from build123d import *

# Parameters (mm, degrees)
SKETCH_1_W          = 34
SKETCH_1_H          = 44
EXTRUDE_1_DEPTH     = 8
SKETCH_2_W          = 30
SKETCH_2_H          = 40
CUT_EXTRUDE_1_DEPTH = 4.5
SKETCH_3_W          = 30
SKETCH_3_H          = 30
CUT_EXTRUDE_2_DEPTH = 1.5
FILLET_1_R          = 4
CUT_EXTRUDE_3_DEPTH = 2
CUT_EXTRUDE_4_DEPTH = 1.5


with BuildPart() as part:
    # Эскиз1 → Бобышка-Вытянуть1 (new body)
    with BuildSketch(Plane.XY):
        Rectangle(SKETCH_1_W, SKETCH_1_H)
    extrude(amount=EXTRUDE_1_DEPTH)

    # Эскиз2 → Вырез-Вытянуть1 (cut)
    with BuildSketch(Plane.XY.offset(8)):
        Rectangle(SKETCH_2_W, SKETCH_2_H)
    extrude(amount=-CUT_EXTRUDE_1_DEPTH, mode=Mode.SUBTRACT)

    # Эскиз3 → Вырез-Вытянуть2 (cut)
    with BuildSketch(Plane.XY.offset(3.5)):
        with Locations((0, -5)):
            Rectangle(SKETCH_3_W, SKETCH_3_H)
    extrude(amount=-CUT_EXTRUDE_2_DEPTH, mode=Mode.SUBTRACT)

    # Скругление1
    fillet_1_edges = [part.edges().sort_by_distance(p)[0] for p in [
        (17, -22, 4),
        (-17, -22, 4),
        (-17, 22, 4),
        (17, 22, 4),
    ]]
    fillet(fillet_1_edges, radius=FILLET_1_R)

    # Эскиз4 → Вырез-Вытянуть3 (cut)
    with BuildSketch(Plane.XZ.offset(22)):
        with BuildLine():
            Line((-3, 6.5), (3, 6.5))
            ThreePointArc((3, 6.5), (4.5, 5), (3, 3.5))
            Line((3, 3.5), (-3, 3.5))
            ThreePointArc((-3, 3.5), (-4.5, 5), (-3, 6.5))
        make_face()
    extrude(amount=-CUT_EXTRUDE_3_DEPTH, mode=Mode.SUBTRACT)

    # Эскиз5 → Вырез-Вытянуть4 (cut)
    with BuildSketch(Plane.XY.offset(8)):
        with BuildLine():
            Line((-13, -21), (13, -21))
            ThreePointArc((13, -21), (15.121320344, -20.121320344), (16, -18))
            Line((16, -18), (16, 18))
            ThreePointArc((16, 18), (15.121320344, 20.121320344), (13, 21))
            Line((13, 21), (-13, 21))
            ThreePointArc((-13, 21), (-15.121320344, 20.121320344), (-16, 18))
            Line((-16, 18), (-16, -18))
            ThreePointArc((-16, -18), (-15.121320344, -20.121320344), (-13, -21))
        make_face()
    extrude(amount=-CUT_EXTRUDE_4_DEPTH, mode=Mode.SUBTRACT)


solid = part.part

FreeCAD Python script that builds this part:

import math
import FreeCAD as App
import Part
import Sketcher
Q = App.Units.Quantity


def edges_at(feature, points):
    """Names of the edges that pass closest to the given points."""
    edges = feature.Shape.Edges
    near = lambda p: min(range(len(edges)), key=lambda i: edges[i].distToShape(Part.Vertex(*p))[0])
    return sorted({f"Edge{near(p) + 1}" for p in points})


def add_polygon(sketch, points):
    """Adds a closed chain of lines whose ends are joined by coincident constraints."""
    first, n = sketch.GeometryCount, len(points)
    for a, b in zip(points, points[1:] + points[:1]):
        sketch.addGeometry(Part.LineSegment(App.Vector(*a, 0), App.Vector(*b, 0)), False)
    for i in range(n):
        sketch.addConstraint(Sketcher.Constraint("Coincident", first + i, 2, first + (i + 1) % n, 1))

doc = App.newDocument("Part")
params = doc.addObject("Spreadsheet::Sheet", "Params")
for row, (alias, value) in enumerate([
    ("sketch1_width", "34 mm"),
    ("sketch1_height", "44 mm"),
    ("pad1_length", "8 mm"),
    ("sketch2_width", "30 mm"),
    ("sketch2_height", "40 mm"),
    ("pocket1_length", "4.5 mm"),
    ("sketch3_width", "30 mm"),
    ("pocket2_length", "1.5 mm"),
    ("fillet_radius", "4 mm"),
    ("sketch4_radius", "1.5 mm"),
    ("sketch4_width", "6 mm"),
    ("pocket3_length", "2 mm"),
    ("sketch5_radius", "3 mm"),
    ("sketch5_width", "26 mm"),
    ("sketch5_height", "36 mm"),
    ("pocket4_length", "1.5 mm"),
], start=1):
    params.set(f"A{row}", alias)
    params.set(f"B{row}", "=" + value)
    params.setAlias(f"B{row}", alias)

body = doc.addObject("PartDesign::Body", "Body")

sketch1 = body.newObject("Sketcher::SketchObject", "Sketch")
sketch1.AttachmentSupport = (doc.getObject("XY_Plane"), [""])
sketch1.MapMode = "FlatFace"
add_polygon(sketch1, [(-17, 22), (-17, -22), (17, -22), (17, 22)])
sketch1.addConstraint([
    Sketcher.Constraint("Vertical", 0),
    Sketcher.Constraint("Horizontal", 1),
    Sketcher.Constraint("Vertical", 2),
    Sketcher.Constraint("Horizontal", 3),
    Sketcher.Constraint("Symmetric", 0, 2, 2, 2, -1, 1),
    Sketcher.Constraint("DistanceX", 1, 1, 1, 2, Q("34 mm")),
    Sketcher.Constraint("DistanceY", 0, 2, 0, 1, Q("44 mm")),
])
sketch1.setExpression("Constraints[9]", "Params.sketch1_width")
sketch1.setExpression("Constraints[10]", "Params.sketch1_height")
pad1 = body.newObject("PartDesign::Pad", "Pad")
pad1.Profile = sketch1
pad1.setExpression("Length", "Params.pad1_length")

sketch2 = body.newObject("Sketcher::SketchObject", "Sketch001")
sketch2.AttachmentSupport = (doc.getObject("XY_Plane"), [""])
sketch2.MapMode = "FlatFace"
sketch2.AttachmentOffset = App.Placement(App.Vector(0, 0, 8), App.Rotation())
add_polygon(sketch2, [(-15, 20), (-15, -20), (15, -20), (15, 20)])
sketch2.addConstraint([
    Sketcher.Constraint("Vertical", 0),
    Sketcher.Constraint("Horizontal", 1),
    Sketcher.Constraint("Vertical", 2),
    Sketcher.Constraint("Horizontal", 3),
    Sketcher.Constraint("Symmetric", 0, 2, 2, 2, -1, 1),
    Sketcher.Constraint("DistanceX", 1, 1, 1, 2, Q("30 mm")),
    Sketcher.Constraint("DistanceY", 0, 2, 0, 1, Q("40 mm")),
])
sketch2.setExpression("Constraints[9]", "Params.sketch2_width")
sketch2.setExpression("Constraints[10]", "Params.sketch2_height")
pocket1 = body.newObject("PartDesign::Pocket", "Pocket")
pocket1.Profile = sketch2
pocket1.setExpression("Length", "Params.pocket1_length")

sketch3 = body.newObject("Sketcher::SketchObject", "Sketch002")
sketch3.AttachmentSupport = (doc.getObject("XY_Plane"), [""])
sketch3.MapMode = "FlatFace"
sketch3.AttachmentOffset = App.Placement(App.Vector(0, 0, 3.5), App.Rotation())
add_polygon(sketch3, [(-15, 10), (-15, -20), (15, -20), (15, 10)])
sketch3.addConstraint([
    Sketcher.Constraint("Vertical", 0),
    Sketcher.Constraint("Horizontal", 1),
    Sketcher.Constraint("Vertical", 2),
    Sketcher.Constraint("Horizontal", 3),
    Sketcher.Constraint("Equal", 3, 0),
    Sketcher.Constraint("DistanceX", 1, 1, 1, 2, Q("30 mm")),
    Sketcher.Constraint("DistanceX", 0, 2, -1, 1, Q("15 mm")),
    Sketcher.Constraint("DistanceY", 0, 2, -1, 1, Q("20 mm")),
])
sketch3.setExpression("Constraints[9]", "Params.sketch3_width")
pocket2 = body.newObject("PartDesign::Pocket", "Pocket001")
pocket2.Profile = sketch3
pocket2.setExpression("Length", "Params.pocket2_length")
doc.recompute()

fillet = body.newObject("PartDesign::Fillet", "Fillet")
fillet.Base = (pocket2, edges_at(pocket2, [
    (17, -22, 4),
    (-17, -22, 4),
    (-17, 22, 4),
    (17, 22, 4),
]))
fillet.setExpression("Radius", "Params.fillet_radius")

sketch4 = body.newObject("Sketcher::SketchObject", "Sketch003")
sketch4.AttachmentSupport = (doc.getObject("XZ_Plane"), [""])
sketch4.MapMode = "FlatFace"
sketch4.AttachmentOffset = App.Placement(App.Vector(0, 0, 22), App.Rotation())
sketch4.addGeometry([
    Part.LineSegment(App.Vector(3, 6.5, 0), App.Vector(-3, 6.5, 0)),
    Part.ArcOfCircle(Part.Circle(App.Vector(-3, 5, 0), App.Vector(0, 0, 1), 1.5), math.radians(90), math.radians(270)),
    Part.LineSegment(App.Vector(-3, 3.5, 0), App.Vector(3, 3.5, 0)),
    Part.ArcOfCircle(Part.Circle(App.Vector(3, 5, 0), App.Vector(0, 0, 1), 1.5), math.radians(-90), math.radians(90)),
], False)
sketch4.addConstraint([
    Sketcher.Constraint("Tangent", 0, 2, 1, 1),
    Sketcher.Constraint("Tangent", 1, 2, 2, 1),
    Sketcher.Constraint("Tangent", 2, 2, 3, 1),
    Sketcher.Constraint("Tangent", 3, 2, 0, 1),
    Sketcher.Constraint("Horizontal", 0),
    Sketcher.Constraint("Horizontal", 2),
    Sketcher.Constraint("Radius", 1, Q("1.5 mm")),
    Sketcher.Constraint("DistanceX", 0, 2, 0, 1, Q("6 mm")),
    Sketcher.Constraint("DistanceX", 1, 3, -1, 1, Q("3 mm")),
    Sketcher.Constraint("DistanceY", -1, 1, 1, 3, Q("5 mm")),
])
sketch4.setExpression("Constraints[6]", "Params.sketch4_radius")
sketch4.setExpression("Constraints[7]", "Params.sketch4_width")
pocket3 = body.newObject("PartDesign::Pocket", "Pocket002")
pocket3.Profile = sketch4
pocket3.setExpression("Length", "Params.pocket3_length")

sketch5 = body.newObject("Sketcher::SketchObject", "Sketch004")
sketch5.AttachmentSupport = (doc.getObject("XY_Plane"), [""])
sketch5.MapMode = "FlatFace"
sketch5.AttachmentOffset = App.Placement(App.Vector(0, 0, 8), App.Rotation())
sketch5.addGeometry([
    Part.LineSegment(App.Vector(-13, -21, 0), App.Vector(13, -21, 0)),
    Part.ArcOfCircle(Part.Circle(App.Vector(13, -18, 0), App.Vector(0, 0, 1), 3), math.radians(-90), math.radians(0)),
    Part.LineSegment(App.Vector(16, -18, 0), App.Vector(16, 18, 0)),
    Part.ArcOfCircle(Part.Circle(App.Vector(13, 18, 0), App.Vector(0, 0, 1), 3), math.radians(0), math.radians(90)),
    Part.LineSegment(App.Vector(13, 21, 0), App.Vector(-13, 21, 0)),
    Part.ArcOfCircle(Part.Circle(App.Vector(-13, 18, 0), App.Vector(0, 0, 1), 3), math.radians(90), math.radians(180)),
    Part.LineSegment(App.Vector(-16, 18, 0), App.Vector(-16, -18, 0)),
    Part.ArcOfCircle(Part.Circle(App.Vector(-13, -18, 0), App.Vector(0, 0, 1), 3), math.radians(180), math.radians(270)),
], False)
sketch5.addConstraint([
    Sketcher.Constraint("Tangent", 0, 2, 1, 1),
    Sketcher.Constraint("Tangent", 1, 2, 2, 1),
    Sketcher.Constraint("Tangent", 2, 2, 3, 1),
    Sketcher.Constraint("Tangent", 3, 2, 4, 1),
    Sketcher.Constraint("Tangent", 4, 2, 5, 1),
    Sketcher.Constraint("Tangent", 5, 2, 6, 1),
    Sketcher.Constraint("Tangent", 6, 2, 7, 1),
    Sketcher.Constraint("Tangent", 7, 2, 0, 1),
    Sketcher.Constraint("Horizontal", 0),
    Sketcher.Constraint("Vertical", 2),
    Sketcher.Constraint("Horizontal", 4),
    Sketcher.Constraint("Vertical", 6),
    Sketcher.Constraint("Equal", 1, 3),
    Sketcher.Constraint("Equal", 3, 5),
    Sketcher.Constraint("Equal", 5, 7),
    Sketcher.Constraint("Symmetric", 1, 3, 5, 3, -1, 1),
    Sketcher.Constraint("Radius", 1, Q("3 mm")),
    Sketcher.Constraint("DistanceX", 0, 1, 0, 2, Q("26 mm")),
    Sketcher.Constraint("DistanceY", 2, 1, 2, 2, Q("36 mm")),
])
sketch5.setExpression("Constraints[16]", "Params.sketch5_radius")
sketch5.setExpression("Constraints[17]", "Params.sketch5_width")
sketch5.setExpression("Constraints[18]", "Params.sketch5_height")
pocket4 = body.newObject("PartDesign::Pocket", "Pocket003")
pocket4.Profile = sketch5
pocket4.setExpression("Length", "Params.pocket4_length")

doc.recompute()
